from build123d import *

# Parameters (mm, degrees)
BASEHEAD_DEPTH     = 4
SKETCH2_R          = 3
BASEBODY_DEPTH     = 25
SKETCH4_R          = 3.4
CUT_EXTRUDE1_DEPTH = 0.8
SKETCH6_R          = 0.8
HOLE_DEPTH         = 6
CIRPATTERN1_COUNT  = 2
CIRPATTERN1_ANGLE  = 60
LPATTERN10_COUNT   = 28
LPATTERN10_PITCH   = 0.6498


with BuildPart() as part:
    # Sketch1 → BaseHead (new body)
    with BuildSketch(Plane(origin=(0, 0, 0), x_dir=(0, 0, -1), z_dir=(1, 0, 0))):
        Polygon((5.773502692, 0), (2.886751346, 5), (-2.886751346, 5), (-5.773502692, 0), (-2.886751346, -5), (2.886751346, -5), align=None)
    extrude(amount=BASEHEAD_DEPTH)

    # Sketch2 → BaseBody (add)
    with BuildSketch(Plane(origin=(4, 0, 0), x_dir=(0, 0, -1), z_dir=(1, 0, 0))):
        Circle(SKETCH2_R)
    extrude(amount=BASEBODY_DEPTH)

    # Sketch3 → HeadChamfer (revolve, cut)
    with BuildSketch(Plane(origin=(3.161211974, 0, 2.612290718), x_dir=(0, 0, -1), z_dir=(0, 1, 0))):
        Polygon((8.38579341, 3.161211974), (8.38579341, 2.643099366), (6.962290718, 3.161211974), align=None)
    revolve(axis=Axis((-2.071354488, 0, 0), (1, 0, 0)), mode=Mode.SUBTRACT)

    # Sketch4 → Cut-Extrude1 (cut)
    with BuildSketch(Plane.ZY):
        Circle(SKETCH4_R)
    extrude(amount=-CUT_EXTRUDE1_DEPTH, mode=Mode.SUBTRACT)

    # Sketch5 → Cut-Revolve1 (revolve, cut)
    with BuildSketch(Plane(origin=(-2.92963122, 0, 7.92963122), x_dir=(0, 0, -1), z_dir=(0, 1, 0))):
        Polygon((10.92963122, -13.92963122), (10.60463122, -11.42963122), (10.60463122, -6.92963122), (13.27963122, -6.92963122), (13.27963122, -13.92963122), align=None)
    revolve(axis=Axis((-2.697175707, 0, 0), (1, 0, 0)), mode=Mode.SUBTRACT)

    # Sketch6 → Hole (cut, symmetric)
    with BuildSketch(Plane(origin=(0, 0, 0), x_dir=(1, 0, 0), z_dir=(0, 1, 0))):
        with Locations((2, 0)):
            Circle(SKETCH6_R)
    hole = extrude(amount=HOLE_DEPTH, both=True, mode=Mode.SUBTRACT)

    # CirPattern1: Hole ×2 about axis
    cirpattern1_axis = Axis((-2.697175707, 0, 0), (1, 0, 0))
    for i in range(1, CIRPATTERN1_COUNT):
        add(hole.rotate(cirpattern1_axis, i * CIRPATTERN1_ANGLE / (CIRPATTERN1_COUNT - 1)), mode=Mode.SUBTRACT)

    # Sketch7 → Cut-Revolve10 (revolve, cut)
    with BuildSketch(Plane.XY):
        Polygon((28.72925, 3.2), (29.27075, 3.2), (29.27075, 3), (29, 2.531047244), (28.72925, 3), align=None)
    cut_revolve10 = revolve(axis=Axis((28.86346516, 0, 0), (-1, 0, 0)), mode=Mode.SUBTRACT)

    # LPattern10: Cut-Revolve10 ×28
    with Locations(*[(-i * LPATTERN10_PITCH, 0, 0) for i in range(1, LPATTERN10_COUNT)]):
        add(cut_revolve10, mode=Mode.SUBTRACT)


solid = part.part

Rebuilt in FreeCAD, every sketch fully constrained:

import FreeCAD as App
import Part
import Sketcher
from FreeCAD import Vector
Q = App.Units.Quantity

doc = App.newDocument("Part")
body = doc.addObject("PartDesign::Body", "Body")

# Sketch on YZ plane
sketch1 = body.newObject("Sketcher::SketchObject", "Sketch")
sketch1.AttachmentSupport = (doc.getObject("YZ_Plane"), [""])
sketch1.MapMode = "FlatFace"
sketch1.addGeometry(Part.LineSegment(Vector(0, -6, 0), Vector(5, -3, 0)), False)
sketch1.addGeometry(Part.LineSegment(Vector(5, -3, 0), Vector(5, 3, 0)), False)
sketch1.addGeometry(Part.LineSegment(Vector(5, 3, 0), Vector(0, 6, 0)), False)
sketch1.addGeometry(Part.LineSegment(Vector(0, 6, 0), Vector(-5, 3, 0)), False)
sketch1.addGeometry(Part.LineSegment(Vector(-5, 3, 0), Vector(-5, -3, 0)), False)
sketch1.addGeometry(Part.LineSegment(Vector(-5, -3, 0), Vector(0, -6, 0)), False)
sketch1.addConstraint(Sketcher.Constraint("Coincident", 0, 2, 1, 1))
sketch1.addConstraint(Sketcher.Constraint("Coincident", 1, 2, 2, 1))
sketch1.addConstraint(Sketcher.Constraint("Coincident", 2, 2, 3, 1))
sketch1.addConstraint(Sketcher.Constraint("Coincident", 3, 2, 4, 1))
sketch1.addConstraint(Sketcher.Constraint("Coincident", 4, 2, 5, 1))
sketch1.addConstraint(Sketcher.Constraint("Coincident", 5, 2, 0, 1))
sketch1.addConstraint(Sketcher.Constraint("Vertical", 1))
sketch1.addConstraint(Sketcher.Constraint("Vertical", 4))
sketch1.addConstraint(Sketcher.Constraint("Symmetric", 0, 2, 3, 2, -1, 1))
sketch1.addConstraint(Sketcher.Constraint("Symmetric", 2, 2, 5, 2, -1, 1))
sketch1.addConstraint(Sketcher.Constraint("PointOnObject", 2, 2, -2))
sketch1.addConstraint(Sketcher.Constraint("Parallel", 2, 5))
sketch1.addConstraint(Sketcher.Constraint("Horizontal", 1, 2, 3, 2))
sketch1.addConstraint(Sketcher.Constraint("Angle", 0, Q("30 deg")))
sketch1.addConstraint(Sketcher.Constraint("DistanceX", -1, 1, 0, 2, Q("5 mm")))
sketch1.addConstraint(Sketcher.Constraint("DistanceY", 1, 1, 1, 2, Q("5.773503 mm")))
pad1 = body.newObject("PartDesign::Pad", "Pad")
pad1.Profile = sketch1
pad1.Length = 4

# Sketch on YZ plane
sketch2 = body.newObject("Sketcher::SketchObject", "Sketch001")
sketch2.AttachmentSupport = (doc.getObject("YZ_Plane"), [""])
sketch2.MapMode = "FlatFace"
sketch2.AttachmentOffset = App.Placement(Vector(0, 0, 4), App.Rotation())
sketch2.addGeometry(Part.Circle(Vector(0, 0, 0), Vector(0, 0, 1), 3), False)
sketch2.addConstraint(Sketcher.Constraint("Coincident", 0, 3, -1, 1))
sketch2.addConstraint(Sketcher.Constraint("Diameter", 0, Q("6 mm")))
pad2 = body.newObject("PartDesign::Pad", "Pad001")
pad2.Profile = sketch2
pad2.Length = 25

# Sketch on XZ plane
sketch3 = body.newObject("Sketcher::SketchObject", "Sketch002")
sketch3.AttachmentSupport = (doc.getObject("XZ_Plane"), [""])
sketch3.MapMode = "FlatFace"
sketch3.addGeometry(Part.LineSegment(Vector(0.5, -5.8, 0), Vector(0, -5.8, 0)), False)
sketch3.addGeometry(Part.LineSegment(Vector(0, -5.8, 0), Vector(0, -4.3, 0)), False)
sketch3.addGeometry(Part.LineSegment(Vector(0, -4.3, 0), Vector(0.5, -5.8, 0)), False)
sketch3.addConstraint(Sketcher.Constraint("Coincident", 0, 2, 1, 1))
sketch3.addConstraint(Sketcher.Constraint("Coincident", 1, 2, 2, 1))
sketch3.addConstraint(Sketcher.Constraint("Coincident", 2, 2, 0, 1))
sketch3.addConstraint(Sketcher.Constraint("Horizontal", 0))
sketch3.addConstraint(Sketcher.Constraint("Vertical", 1))
sketch3.addConstraint(Sketcher.Constraint("PointOnObject", 0, 2, -2))
sketch3.addConstraint(Sketcher.Constraint("Angle", 2, Q("-70 deg")))
sketch3.addConstraint(Sketcher.Constraint("DistanceY", 1, 2, -1, 1, Q("4.35 mm")))
sketch3.addConstraint(Sketcher.Constraint("Distance", 2, Q("1.51486 mm")))
groove = body.newObject("PartDesign::Groove", "Groove")
groove.Profile = sketch3
groove.ReferenceAxis = (sketch3, ["H_Axis"])
groove.Angle = 360

# Sketch on YZ plane
sketch4 = body.newObject("Sketcher::SketchObject", "Sketch003")
sketch4.AttachmentSupport = (doc.getObject("YZ_Plane"), [""])
sketch4.MapMode = "FlatFace"
sketch4.addGeometry(Part.Circle(Vector(0, 0, 0), Vector(0, 0, 1), 3.4), False)
sketch4.addConstraint(Sketcher.Constraint("Coincident", 0, 3, -1, 1))
sketch4.addConstraint(Sketcher.Constraint("Diameter", 0, Q("6.8 mm")))
pocket1 = body.newObject("PartDesign::Pocket", "Pocket")
pocket1.Profile = sketch4
pocket1.Length = 0.8
pocket1.Reversed = True

# Sketch on XZ plane
sketch5 = body.newObject("Sketcher::SketchObject", "Sketch004")
sketch5.AttachmentSupport = (doc.getObject("XZ_Plane"), [""])
sketch5.MapMode = "FlatFace"
sketch5.addGeometry(Part.LineSegment(Vector(8.5, -2.7, 0), Vector(11, -3, 0)), False)
sketch5.addGeometry(Part.LineSegment(Vector(11, -3, 0), Vector(11, -5.3, 0)), False)
sketch5.addGeometry(Part.LineSegment(Vector(11, -5.3, 0), Vector(4, -5.3, 0)), False)
sketch5.addGeometry(Part.LineSegment(Vector(4, -5.3, 0), Vector(4, -2.7, 0)), False)
sketch5.addGeometry(Part.LineSegment(Vector(4, -2.7, 0), Vector(8.5, -2.7, 0)), False)
sketch5.addConstraint(Sketcher.Constraint("Coincident", 0, 2, 1, 1))
sketch5.addConstraint(Sketcher.Constraint("Coincident", 1, 2, 2, 1))
sketch5.addConstraint(Sketcher.Constraint("Coincident", 2, 2, 3, 1))
sketch5.addConstraint(Sketcher.Constraint("Coincident", 3, 2, 4, 1))
sketch5.addConstraint(Sketcher.Constraint("Coincident", 4, 2, 0, 1))
sketch5.addConstraint(Sketcher.Constraint("Vertical", 1))
sketch5.addConstraint(Sketcher.Constraint("Horizontal", 2))
sketch5.addConstraint(Sketcher.Constraint("Vertical", 3))
sketch5.addConstraint(Sketcher.Constraint("Horizontal", 4))
sketch5.addConstraint(Sketcher.Constraint("DistanceX", 2, 2, 2, 1, Q("7 mm")))
sketch5.addConstraint(Sketcher.Constraint("DistanceX", 4, 1, 4, 2, Q("4.5 mm")))
sketch5.addConstraint(Sketcher.Constraint("DistanceX", -1, 1, 0, 2, Q("11 mm")))
sketch5.addConstraint(Sketcher.Constraint("DistanceY", 0, 2, -1, 1, Q("3 mm")))
sketch5.addConstraint(Sketcher.Constraint("DistanceY", 1, 2, 1, 1, Q("2.35 mm")))
sketch5.addConstraint(Sketcher.Constraint("DistanceY", 3, 1, 3, 2, Q("2.675 mm")))
groove2 = body.newObject("PartDesign::Groove", "Groove001")
groove2.Profile = sketch5
groove2.ReferenceAxis = (sketch5, ["H_Axis"])
groove2.Angle = 360

# Sketch on XZ plane
sketch6 = body.newObject("Sketcher::SketchObject", "Sketch005")
sketch6.AttachmentSupport = (doc.getObject("XZ_Plane"), [""])
sketch6.MapMode = "FlatFace"
sketch6.addGeometry(Part.Circle(Vector(2, 0, 0), Vector(0, 0, 1), 0.8), False)
sketch6.addConstraint(Sketcher.Constraint("PointOnObject", 0, 3, -1))
sketch6.addConstraint(Sketcher.Constraint("Diameter", 0, Q("1.6 mm")))
sketch6.addConstraint(Sketcher.Constraint("DistanceX", -1, 1, 0, 3, Q("2 mm")))
pocket2 = body.newObject("PartDesign::Pocket", "Pocket001")
pocket2.Profile = sketch6
pocket2.Length = 12
pocket2.Midplane = True
doc.recompute()

polarpattern = body.newObject("PartDesign::PolarPattern", "PolarPattern")
polarpattern.Originals = [pocket2]
polarpattern.Axis = (doc.getObject("X_Axis"), [""])
polarpattern.Angle = 60
polarpattern.Occurrences = 2
body.Tip = polarpattern

# Sketch on XY plane
sketch7 = body.newObject("Sketcher::SketchObject", "Sketch006")
sketch7.AttachmentSupport = (doc.getObject("XY_Plane"), [""])
sketch7.MapMode = "FlatFace"
sketch7.addGeometry(Part.LineSegment(Vector(29.27, 3.2, 0), Vector(28.73, 3.2, 0)), False)
sketch7.addGeometry(Part.LineSegment(Vector(28.73, 3.2, 0), Vector(28.73, 3, 0)), False)
sketch7.addGeometry(Part.LineSegment(Vector(28.73, 3, 0), Vector(29, 2.53, 0)), False)
sketch7.addGeometry(Part.LineSegment(Vector(29, 2.53, 0), Vector(29.27, 3, 0)), False)
sketch7.addGeometry(Part.LineSegment(Vector(29.27, 3, 0), Vector(29.27, 3.2, 0)), False)
sketch7.addConstraint(Sketcher.Constraint("Coincident", 0, 2, 1, 1))
sketch7.addConstraint(Sketcher.Constraint("Coincident", 1, 2, 2, 1))
sketch7.addConstraint(Sketcher.Constraint("Coincident", 2, 2, 3, 1))
sketch7.addConstraint(Sketcher.Constraint("Coincident", 3, 2, 4, 1))
sketch7.addConstraint(Sketcher.Constraint("Coincident", 4, 2, 0, 1))
sketch7.addConstraint(Sketcher.Constraint("Horizontal", 0))
sketch7.addConstraint(Sketcher.Constraint("Vertical", 1))
sketch7.addConstraint(Sketcher.Constraint("Vertical", 4))
sketch7.addConstraint(Sketcher.Constraint("Horizontal", 1, 2, 3, 2))
sketch7.addConstraint(Sketcher.Constraint("Equal", 2, 3))
sketch7.addConstraint(Sketcher.Constraint("Angle", 2, Q("-60 deg")))
sketch7.addConstraint(Sketcher.Constraint("DistanceY", 1, 2, 1, 1, Q("0.2 mm")))
sketch7.addConstraint(Sketcher.Constraint("DistanceY", -1, 1, 1, 2, Q("3 mm")))
sketch7.addConstraint(Sketcher.Constraint("DistanceX", -1, 1, 2, 2, Q("29 mm")))
sketch7.addConstraint(Sketcher.Constraint("DistanceX", 0, 2, 0, 1, Q("0.5415 mm")))
groove3 = body.newObject("PartDesign::Groove", "Groove002")
groove3.Profile = sketch7
groove3.ReferenceAxis = (sketch7, ["H_Axis"])
groove3.Angle = 360
doc.recompute()

linearpattern = body.newObject("PartDesign::LinearPattern", "LinearPattern")
linearpattern.Originals = [groove3]
linearpattern.Direction = (doc.getObject("X_Axis"), [""])
linearpattern.Mode = "offset"
linearpattern.Offset = 0.6498
linearpattern.Occurrences = 28
linearpattern.Reversed = True
body.Tip = linearpattern

doc.recompute()
